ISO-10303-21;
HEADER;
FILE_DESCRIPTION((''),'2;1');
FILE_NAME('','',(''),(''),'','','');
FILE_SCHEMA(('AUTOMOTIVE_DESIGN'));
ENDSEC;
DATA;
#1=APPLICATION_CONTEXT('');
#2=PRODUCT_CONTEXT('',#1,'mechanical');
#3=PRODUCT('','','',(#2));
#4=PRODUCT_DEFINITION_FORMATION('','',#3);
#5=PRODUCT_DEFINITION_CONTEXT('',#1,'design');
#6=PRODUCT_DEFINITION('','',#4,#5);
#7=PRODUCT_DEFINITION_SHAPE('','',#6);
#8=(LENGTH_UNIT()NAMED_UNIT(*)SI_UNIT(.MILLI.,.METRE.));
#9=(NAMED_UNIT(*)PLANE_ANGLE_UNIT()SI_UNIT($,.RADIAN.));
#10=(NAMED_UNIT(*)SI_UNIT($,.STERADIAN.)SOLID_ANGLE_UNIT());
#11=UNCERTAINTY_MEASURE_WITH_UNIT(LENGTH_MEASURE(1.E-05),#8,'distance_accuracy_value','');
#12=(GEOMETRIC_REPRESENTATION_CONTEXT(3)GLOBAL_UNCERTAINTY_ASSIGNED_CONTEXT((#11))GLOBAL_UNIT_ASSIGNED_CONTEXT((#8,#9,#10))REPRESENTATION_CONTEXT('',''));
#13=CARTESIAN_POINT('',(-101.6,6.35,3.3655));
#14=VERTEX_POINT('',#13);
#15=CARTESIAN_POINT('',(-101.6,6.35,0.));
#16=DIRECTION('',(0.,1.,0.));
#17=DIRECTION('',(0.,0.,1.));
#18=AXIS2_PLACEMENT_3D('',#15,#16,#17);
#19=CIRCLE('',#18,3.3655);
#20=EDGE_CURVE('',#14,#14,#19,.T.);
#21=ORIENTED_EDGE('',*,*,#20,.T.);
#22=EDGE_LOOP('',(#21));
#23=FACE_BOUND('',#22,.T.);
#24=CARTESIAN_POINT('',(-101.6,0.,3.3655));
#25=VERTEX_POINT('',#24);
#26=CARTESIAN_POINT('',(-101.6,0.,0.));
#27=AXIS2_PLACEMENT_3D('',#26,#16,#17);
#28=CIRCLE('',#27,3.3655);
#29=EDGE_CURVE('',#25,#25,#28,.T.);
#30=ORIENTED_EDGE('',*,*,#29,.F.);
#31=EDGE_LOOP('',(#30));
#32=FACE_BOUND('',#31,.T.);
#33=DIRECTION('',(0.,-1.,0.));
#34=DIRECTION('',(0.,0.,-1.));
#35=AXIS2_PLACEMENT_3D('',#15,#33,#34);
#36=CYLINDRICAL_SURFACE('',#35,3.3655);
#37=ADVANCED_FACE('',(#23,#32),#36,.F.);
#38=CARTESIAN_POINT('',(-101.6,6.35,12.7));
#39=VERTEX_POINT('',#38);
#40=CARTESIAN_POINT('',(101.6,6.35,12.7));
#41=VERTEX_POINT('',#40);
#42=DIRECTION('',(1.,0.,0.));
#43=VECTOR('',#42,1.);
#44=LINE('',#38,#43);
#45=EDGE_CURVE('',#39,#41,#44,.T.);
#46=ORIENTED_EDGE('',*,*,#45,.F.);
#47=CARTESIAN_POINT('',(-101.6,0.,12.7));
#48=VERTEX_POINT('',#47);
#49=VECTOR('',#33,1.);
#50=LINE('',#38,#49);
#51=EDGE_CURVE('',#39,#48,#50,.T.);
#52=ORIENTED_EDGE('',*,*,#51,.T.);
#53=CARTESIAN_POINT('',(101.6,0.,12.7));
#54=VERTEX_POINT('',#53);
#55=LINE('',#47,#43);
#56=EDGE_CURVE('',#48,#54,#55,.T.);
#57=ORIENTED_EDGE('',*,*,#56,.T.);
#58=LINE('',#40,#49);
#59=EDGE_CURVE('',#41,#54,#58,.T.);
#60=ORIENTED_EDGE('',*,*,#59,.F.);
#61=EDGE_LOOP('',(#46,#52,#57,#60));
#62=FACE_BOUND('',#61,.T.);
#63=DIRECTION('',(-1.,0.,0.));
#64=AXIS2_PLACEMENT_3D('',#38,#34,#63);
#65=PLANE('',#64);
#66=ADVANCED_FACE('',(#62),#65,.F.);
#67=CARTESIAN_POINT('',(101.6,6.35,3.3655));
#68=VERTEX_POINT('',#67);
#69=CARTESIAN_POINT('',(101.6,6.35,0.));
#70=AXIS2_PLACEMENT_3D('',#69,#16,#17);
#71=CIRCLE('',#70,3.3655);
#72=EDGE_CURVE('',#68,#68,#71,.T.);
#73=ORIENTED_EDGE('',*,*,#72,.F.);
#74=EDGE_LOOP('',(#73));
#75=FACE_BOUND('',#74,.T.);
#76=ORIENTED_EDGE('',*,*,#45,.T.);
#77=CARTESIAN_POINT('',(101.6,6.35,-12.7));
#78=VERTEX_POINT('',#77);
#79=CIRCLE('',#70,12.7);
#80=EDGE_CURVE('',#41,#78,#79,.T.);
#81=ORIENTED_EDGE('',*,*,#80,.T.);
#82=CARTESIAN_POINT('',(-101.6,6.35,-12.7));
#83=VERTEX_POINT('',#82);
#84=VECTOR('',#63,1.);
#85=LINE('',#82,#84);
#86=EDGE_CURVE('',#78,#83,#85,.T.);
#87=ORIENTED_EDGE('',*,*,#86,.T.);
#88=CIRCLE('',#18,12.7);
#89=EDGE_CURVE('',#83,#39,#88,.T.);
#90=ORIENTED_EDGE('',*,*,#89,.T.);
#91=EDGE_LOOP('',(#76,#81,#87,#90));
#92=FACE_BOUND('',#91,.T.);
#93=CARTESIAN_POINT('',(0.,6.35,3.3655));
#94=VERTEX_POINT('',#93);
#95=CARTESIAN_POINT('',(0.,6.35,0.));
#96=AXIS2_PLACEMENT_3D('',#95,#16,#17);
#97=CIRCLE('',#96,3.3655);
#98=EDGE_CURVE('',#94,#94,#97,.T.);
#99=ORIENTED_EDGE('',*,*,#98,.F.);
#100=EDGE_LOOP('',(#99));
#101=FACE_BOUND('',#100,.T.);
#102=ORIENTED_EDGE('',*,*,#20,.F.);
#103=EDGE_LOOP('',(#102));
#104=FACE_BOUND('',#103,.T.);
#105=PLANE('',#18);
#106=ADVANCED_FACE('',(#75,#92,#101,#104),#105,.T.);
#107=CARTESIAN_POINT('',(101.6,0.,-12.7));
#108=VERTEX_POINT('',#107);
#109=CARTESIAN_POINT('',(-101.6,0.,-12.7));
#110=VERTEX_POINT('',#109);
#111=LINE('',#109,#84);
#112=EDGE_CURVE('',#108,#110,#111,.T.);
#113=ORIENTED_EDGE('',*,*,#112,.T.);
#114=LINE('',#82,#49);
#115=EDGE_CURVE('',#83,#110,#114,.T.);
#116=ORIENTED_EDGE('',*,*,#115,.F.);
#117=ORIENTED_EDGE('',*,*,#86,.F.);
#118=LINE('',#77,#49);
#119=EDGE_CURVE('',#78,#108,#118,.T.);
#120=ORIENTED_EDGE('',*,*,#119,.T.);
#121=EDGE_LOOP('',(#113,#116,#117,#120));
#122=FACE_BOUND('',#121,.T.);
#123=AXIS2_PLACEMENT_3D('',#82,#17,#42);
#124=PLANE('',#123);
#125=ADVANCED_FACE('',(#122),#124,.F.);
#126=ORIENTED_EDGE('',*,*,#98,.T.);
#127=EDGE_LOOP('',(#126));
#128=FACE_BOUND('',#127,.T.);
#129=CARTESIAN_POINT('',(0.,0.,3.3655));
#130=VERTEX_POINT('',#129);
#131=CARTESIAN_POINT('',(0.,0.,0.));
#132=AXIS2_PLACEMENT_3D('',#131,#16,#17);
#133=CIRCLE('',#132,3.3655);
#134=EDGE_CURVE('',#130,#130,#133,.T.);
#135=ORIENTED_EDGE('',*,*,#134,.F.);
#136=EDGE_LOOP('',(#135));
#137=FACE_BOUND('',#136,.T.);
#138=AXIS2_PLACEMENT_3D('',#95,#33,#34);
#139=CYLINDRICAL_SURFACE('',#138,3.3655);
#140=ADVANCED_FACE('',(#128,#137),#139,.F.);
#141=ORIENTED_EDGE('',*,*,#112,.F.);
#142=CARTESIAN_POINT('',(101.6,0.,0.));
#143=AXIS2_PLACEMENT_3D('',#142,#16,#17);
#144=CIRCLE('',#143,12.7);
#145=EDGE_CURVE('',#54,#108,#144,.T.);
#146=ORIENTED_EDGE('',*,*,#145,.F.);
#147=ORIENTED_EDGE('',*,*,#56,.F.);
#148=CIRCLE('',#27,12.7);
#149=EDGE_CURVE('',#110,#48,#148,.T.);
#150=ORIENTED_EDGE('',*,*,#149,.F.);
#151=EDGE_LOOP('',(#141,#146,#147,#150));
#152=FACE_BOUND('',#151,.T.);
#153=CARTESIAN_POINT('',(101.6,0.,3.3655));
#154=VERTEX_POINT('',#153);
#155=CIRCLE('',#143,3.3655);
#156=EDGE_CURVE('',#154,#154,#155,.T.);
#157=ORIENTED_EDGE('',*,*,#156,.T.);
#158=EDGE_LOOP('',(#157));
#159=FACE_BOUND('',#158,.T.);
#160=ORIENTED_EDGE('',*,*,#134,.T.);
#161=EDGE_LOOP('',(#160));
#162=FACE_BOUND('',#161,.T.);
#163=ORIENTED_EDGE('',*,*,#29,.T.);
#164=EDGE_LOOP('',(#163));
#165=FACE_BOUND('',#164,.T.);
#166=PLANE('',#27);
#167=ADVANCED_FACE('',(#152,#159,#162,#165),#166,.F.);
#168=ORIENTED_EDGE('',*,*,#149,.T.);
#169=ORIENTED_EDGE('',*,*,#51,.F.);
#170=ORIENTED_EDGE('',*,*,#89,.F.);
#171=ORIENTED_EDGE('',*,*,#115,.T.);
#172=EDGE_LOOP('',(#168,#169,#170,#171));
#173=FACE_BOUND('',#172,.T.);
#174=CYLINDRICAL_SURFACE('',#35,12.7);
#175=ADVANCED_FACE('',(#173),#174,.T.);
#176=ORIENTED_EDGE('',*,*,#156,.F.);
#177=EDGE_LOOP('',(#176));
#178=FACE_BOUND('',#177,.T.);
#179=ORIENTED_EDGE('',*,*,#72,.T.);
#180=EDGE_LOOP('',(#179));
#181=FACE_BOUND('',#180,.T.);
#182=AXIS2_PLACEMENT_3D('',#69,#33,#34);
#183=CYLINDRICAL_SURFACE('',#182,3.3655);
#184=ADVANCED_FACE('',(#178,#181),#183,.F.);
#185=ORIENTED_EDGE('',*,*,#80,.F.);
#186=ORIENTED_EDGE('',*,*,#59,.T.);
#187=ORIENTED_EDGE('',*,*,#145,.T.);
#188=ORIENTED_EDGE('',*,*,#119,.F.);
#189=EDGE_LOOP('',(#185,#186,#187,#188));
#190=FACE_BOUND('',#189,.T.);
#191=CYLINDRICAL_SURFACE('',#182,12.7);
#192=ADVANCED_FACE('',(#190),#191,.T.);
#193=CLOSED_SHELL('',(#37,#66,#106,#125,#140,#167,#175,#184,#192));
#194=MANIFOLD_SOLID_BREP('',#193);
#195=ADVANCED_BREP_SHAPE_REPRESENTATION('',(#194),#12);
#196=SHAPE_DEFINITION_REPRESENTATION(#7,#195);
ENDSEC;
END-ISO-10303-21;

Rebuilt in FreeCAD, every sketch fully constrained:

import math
import FreeCAD as App
import Part
import Sketcher
from FreeCAD import Vector
Q = App.Units.Quantity

doc = App.newDocument("Part")
body = doc.addObject("PartDesign::Body", "Body")

# Sketch on XZ plane
sketch1 = body.newObject("Sketcher::SketchObject", "Sketch")
sketch1.AttachmentSupport = (doc.getObject("XZ_Plane"), [""])
sketch1.MapMode = "FlatFace"
sketch1.addGeometry(Part.LineSegment(Vector(101.6, -12.7, 0), Vector(-101.6, -12.7, 0)), False)
sketch1.addGeometry(Part.ArcOfCircle(Part.Circle(Vector(-101.6, 0, 0), Vector(0, 0, 1), 12.7), math.radians(90), math.radians(270)), False)
sketch1.addGeometry(Part.LineSegment(Vector(-101.6, 12.7, 0), Vector(101.6, 12.7, 0)), False)
sketch1.addGeometry(Part.ArcOfCircle(Part.Circle(Vector(101.6, 0, 0), Vector(0, 0, 1), 12.7), math.radians(-90), math.radians(90)), False)
sketch1.addGeometry(Part.Circle(Vector(101.6, 0, 0), Vector(0, 0, 1), 3.4), False)
sketch1.addGeometry(Part.Circle(Vector(0, 0, 0), Vector(0, 0, 1), 3.4), False)
sketch1.addGeometry(Part.Circle(Vector(-101.6, 0, 0), Vector(0, 0, 1), 3.4), False)
sketch1.addConstraint(Sketcher.Constraint("Tangent", 0, 2, 1, 2))
sketch1.addConstraint(Sketcher.Constraint("Tangent", 1, 1, 2, 1))
sketch1.addConstraint(Sketcher.Constraint("Tangent", 2, 2, 3, 2))
sketch1.addConstraint(Sketcher.Constraint("Tangent", 3, 1, 0, 1))
sketch1.addConstraint(Sketcher.Constraint("Horizontal", 0))
sketch1.addConstraint(Sketcher.Constraint("Horizontal", 2))
sketch1.addConstraint(Sketcher.Constraint("Coincident", 5, 3, -1, 1))
sketch1.addConstraint(Sketcher.Constraint("Coincident", 4, 3, 3, 3))
sketch1.addConstraint(Sketcher.Constraint("Coincident", 6, 3, 1, 3))
sketch1.addConstraint(Sketcher.Constraint("Equal", 4, 5))
sketch1.addConstraint(Sketcher.Constraint("Equal", 5, 6))
sketch1.addConstraint(Sketcher.Constraint("Symmetric", 1, 3, 3, 3, -1, 1))
sketch1.addConstraint(Sketcher.Constraint("Radius", 1, Q("0.5 in")))
sketch1.addConstraint(Sketcher.Constraint("DistanceX", 0, 2, 0, 1, Q("8 in")))
sketch1.addConstraint(Sketcher.Constraint("Diameter", 4, Q("0.265 in")))
pad1 = body.newObject("PartDesign::Pad", "Pad")
pad1.Profile = sketch1
pad1.Length = Q("0.25 in")
pad1.Reversed = True

doc.recompute()
